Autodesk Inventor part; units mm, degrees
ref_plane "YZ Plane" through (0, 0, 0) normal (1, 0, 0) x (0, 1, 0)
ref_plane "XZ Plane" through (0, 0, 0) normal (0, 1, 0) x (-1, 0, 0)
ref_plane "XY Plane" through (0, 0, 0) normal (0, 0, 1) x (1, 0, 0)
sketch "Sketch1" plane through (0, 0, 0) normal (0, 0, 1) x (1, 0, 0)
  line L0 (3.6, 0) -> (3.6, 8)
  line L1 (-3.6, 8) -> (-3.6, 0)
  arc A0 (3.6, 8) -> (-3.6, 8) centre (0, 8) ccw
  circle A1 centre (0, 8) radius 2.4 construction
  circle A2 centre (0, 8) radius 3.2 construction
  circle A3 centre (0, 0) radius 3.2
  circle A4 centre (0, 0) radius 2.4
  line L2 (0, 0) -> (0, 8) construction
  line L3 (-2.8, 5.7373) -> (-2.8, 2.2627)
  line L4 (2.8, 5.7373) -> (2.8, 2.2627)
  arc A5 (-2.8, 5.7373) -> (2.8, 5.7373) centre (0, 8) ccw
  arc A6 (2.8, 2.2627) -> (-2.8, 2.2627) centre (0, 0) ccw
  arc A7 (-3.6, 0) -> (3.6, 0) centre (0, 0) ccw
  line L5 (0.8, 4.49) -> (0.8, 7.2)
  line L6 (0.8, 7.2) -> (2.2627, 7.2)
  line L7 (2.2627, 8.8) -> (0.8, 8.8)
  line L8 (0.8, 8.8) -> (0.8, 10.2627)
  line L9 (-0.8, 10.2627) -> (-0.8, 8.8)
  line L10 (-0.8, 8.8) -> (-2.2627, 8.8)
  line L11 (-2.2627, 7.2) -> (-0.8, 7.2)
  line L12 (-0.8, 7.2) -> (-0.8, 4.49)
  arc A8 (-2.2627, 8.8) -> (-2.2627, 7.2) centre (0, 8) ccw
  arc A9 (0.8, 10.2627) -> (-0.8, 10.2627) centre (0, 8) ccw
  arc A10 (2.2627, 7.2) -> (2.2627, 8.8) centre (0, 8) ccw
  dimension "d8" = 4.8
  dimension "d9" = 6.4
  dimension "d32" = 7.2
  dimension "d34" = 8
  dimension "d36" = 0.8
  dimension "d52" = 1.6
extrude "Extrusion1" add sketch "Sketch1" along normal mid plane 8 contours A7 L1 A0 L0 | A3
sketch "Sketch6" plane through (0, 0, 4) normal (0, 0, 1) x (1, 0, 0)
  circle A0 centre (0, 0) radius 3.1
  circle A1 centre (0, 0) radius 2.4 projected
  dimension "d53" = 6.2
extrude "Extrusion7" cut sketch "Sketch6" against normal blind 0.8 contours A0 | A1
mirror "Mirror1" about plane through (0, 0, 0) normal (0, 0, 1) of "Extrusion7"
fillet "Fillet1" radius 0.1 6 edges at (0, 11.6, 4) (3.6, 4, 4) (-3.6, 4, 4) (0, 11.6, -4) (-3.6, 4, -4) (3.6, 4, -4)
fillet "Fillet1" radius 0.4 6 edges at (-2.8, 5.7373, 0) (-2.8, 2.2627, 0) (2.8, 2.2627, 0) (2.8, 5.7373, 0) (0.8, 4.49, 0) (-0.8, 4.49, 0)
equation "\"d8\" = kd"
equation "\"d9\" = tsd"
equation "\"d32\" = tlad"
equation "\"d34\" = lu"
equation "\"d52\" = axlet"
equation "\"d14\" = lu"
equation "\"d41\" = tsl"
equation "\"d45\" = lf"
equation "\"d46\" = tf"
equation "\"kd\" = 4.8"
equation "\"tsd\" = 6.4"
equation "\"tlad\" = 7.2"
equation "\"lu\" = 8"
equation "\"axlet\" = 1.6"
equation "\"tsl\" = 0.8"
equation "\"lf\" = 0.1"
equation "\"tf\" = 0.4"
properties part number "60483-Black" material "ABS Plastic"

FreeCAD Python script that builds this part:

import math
import FreeCAD as App
import Part
import Sketcher
from FreeCAD import Vector


def edges_at(feature, points):
    """Names of the edges that pass closest to the given points."""
    edges = feature.Shape.Edges
    near = lambda p: min(range(len(edges)), key=lambda i: edges[i].distToShape(Part.Vertex(*p))[0])
    return sorted({f"Edge{near(p) + 1}" for p in points})

doc = App.newDocument("Part")
body = doc.addObject("PartDesign::Body", "Body")

sketch1 = doc.addObject("Sketcher::SketchObject", "Sketch")
body.addObject(sketch1)
sketch1.AttachmentSupport = (doc.XY_Plane, [""])
sketch1.MapMode = "FlatFace"
sketch1.addGeometry(Part.ArcOfCircle(Part.Circle(Vector(0, 0, 0), Vector(0, 0, 1), 3.6), math.radians(180), math.radians(360)), False)
sketch1.addGeometry(Part.LineSegment(Vector(3.6, 0, 0), Vector(3.6, 8, 0)), False)
sketch1.addGeometry(Part.ArcOfCircle(Part.Circle(Vector(0, 8, 0), Vector(0, 0, 1), 3.6), math.radians(0), math.radians(180)), False)
sketch1.addGeometry(Part.LineSegment(Vector(-3.6, 8, 0), Vector(-3.6, 0, 0)), False)
sketch1.addGeometry(Part.LineSegment(Vector(-2.8, 2.3, 0), Vector(-2.8, 5.7, 0)), False)
sketch1.addGeometry(Part.ArcOfCircle(Part.Circle(Vector(0, 8, 0), Vector(0, 0, 1), 3.6), math.radians(-141), math.radians(-103)), False)
sketch1.addGeometry(Part.LineSegment(Vector(-0.8, 4.5, 0), Vector(-0.8, 7.2, 0)), False)
sketch1.addGeometry(Part.LineSegment(Vector(-0.8, 7.2, 0), Vector(-2.3, 7.2, 0)), False)
sketch1.addGeometry(Part.ArcOfCircle(Part.Circle(Vector(0, 8, 0), Vector(0, 0, 1), 2.4), math.radians(161), math.radians(199)), False)
sketch1.addGeometry(Part.LineSegment(Vector(-2.3, 8.8, 0), Vector(-0.8, 8.8, 0)), False)
sketch1.addGeometry(Part.LineSegment(Vector(-0.8, 8.8, 0), Vector(-0.8, 10.3, 0)), False)
sketch1.addGeometry(Part.ArcOfCircle(Part.Circle(Vector(0, 8, 0), Vector(0, 0, 1), 2.4), math.radians(71), math.radians(109)), False)
sketch1.addGeometry(Part.LineSegment(Vector(0.8, 10.3, 0), Vector(0.8, 8.8, 0)), False)
sketch1.addGeometry(Part.LineSegment(Vector(0.8, 8.8, 0), Vector(2.3, 8.8, 0)), False)
sketch1.addGeometry(Part.ArcOfCircle(Part.Circle(Vector(0, 8, 0), Vector(0, 0, 1), 2.4), math.radians(-19), math.radians(19)), False)
sketch1.addGeometry(Part.LineSegment(Vector(2.3, 7.2, 0), Vector(0.8, 7.2, 0)), False)
sketch1.addGeometry(Part.LineSegment(Vector(0.8, 7.2, 0), Vector(0.8, 4.5, 0)), False)
sketch1.addGeometry(Part.ArcOfCircle(Part.Circle(Vector(0, 8, 0), Vector(0, 0, 1), 3.6), math.radians(-77), math.radians(-39)), False)
sketch1.addGeometry(Part.LineSegment(Vector(2.8, 5.7, 0), Vector(2.8, 2.3, 0)), False)
sketch1.addGeometry(Part.ArcOfCircle(Part.Circle(Vector(0, 0, 0), Vector(0, 0, 1), 3.6), math.radians(39), math.radians(141)), False)
sketch1.addGeometry(Part.Circle(Vector(0, 0, 0), Vector(0, 0, 1), 2.4), False)
sketch1.addConstraint(Sketcher.Constraint("Tangent", 0, 2, 1, 1))
sketch1.addConstraint(Sketcher.Constraint("Tangent", 1, 2, 2, 1))
sketch1.addConstraint(Sketcher.Constraint("Tangent", 2, 2, 3, 1))
sketch1.addConstraint(Sketcher.Constraint("Tangent", 3, 2, 0, 1))
sketch1.addConstraint(Sketcher.Constraint("Coincident", 4, 2, 5, 1))
sketch1.addConstraint(Sketcher.Constraint("Coincident", 5, 2, 6, 1))
sketch1.addConstraint(Sketcher.Constraint("Coincident", 6, 2, 7, 1))
sketch1.addConstraint(Sketcher.Constraint("Coincident", 7, 2, 8, 2))
sketch1.addConstraint(Sketcher.Constraint("Coincident", 8, 1, 9, 1))
sketch1.addConstraint(Sketcher.Constraint("Coincident", 9, 2, 10, 1))
sketch1.addConstraint(Sketcher.Constraint("Coincident", 10, 2, 11, 2))
sketch1.addConstraint(Sketcher.Constraint("Coincident", 11, 1, 12, 1))
sketch1.addConstraint(Sketcher.Constraint("Coincident", 12, 2, 13, 1))
sketch1.addConstraint(Sketcher.Constraint("Coincident", 13, 2, 14, 2))
sketch1.addConstraint(Sketcher.Constraint("Coincident", 14, 1, 15, 1))
sketch1.addConstraint(Sketcher.Constraint("Coincident", 15, 2, 16, 1))
sketch1.addConstraint(Sketcher.Constraint("Coincident", 16, 2, 17, 1))
sketch1.addConstraint(Sketcher.Constraint("Coincident", 17, 2, 18, 1))
sketch1.addConstraint(Sketcher.Constraint("Coincident", 18, 2, 19, 1))
sketch1.addConstraint(Sketcher.Constraint("Coincident", 19, 2, 4, 1))
sketch1.addConstraint(Sketcher.Constraint("Vertical", 1))
sketch1.addConstraint(Sketcher.Constraint("Vertical", 3))
sketch1.addConstraint(Sketcher.Constraint("Vertical", 4))
sketch1.addConstraint(Sketcher.Constraint("Vertical", 6))
sketch1.addConstraint(Sketcher.Constraint("Horizontal", 7))
sketch1.addConstraint(Sketcher.Constraint("Horizontal", 9))
sketch1.addConstraint(Sketcher.Constraint("Vertical", 10))
sketch1.addConstraint(Sketcher.Constraint("Vertical", 12))
sketch1.addConstraint(Sketcher.Constraint("Horizontal", 13))
sketch1.addConstraint(Sketcher.Constraint("Horizontal", 15))
sketch1.addConstraint(Sketcher.Constraint("Vertical", 16))
sketch1.addConstraint(Sketcher.Constraint("Vertical", 18))
sketch1.addConstraint(Sketcher.Constraint("Coincident", 0, 3, -1, 1))
sketch1.addConstraint(Sketcher.Constraint("Coincident", 19, 3, -1, 1))
sketch1.addConstraint(Sketcher.Constraint("Coincident", 20, 3, -1, 1))
sketch1.addConstraint(Sketcher.Constraint("Coincident", 5, 3, 2, 3))
sketch1.addConstraint(Sketcher.Constraint("Coincident", 8, 3, 2, 3))
sketch1.addConstraint(Sketcher.Constraint("Coincident", 11, 3, 2, 3))
sketch1.addConstraint(Sketcher.Constraint("Coincident", 14, 3, 2, 3))
sketch1.addConstraint(Sketcher.Constraint("Coincident", 17, 3, 2, 3))
sketch1.addConstraint(Sketcher.Constraint("Equal", 2, 5))
sketch1.addConstraint(Sketcher.Constraint("Equal", 8, 11))
sketch1.addConstraint(Sketcher.Constraint("Equal", 11, 14))
sketch1.addConstraint(Sketcher.Constraint("Equal", 5, 17))
sketch1.addConstraint(Sketcher.Constraint("Equal", 17, 19))
sketch1.addConstraint(Sketcher.Constraint("Equal", 14, 20))
sketch1.addConstraint(Sketcher.Constraint("Symmetric", 9, 2, 12, 2, -2))
sketch1.addConstraint(Sketcher.Constraint("Symmetric", 6, 2, 15, 2, -2))
sketch1.addConstraint(Sketcher.Constraint("Horizontal", 4, 2, 17, 2))
sketch1.addConstraint(Sketcher.Constraint("Vertical", 7, 2, 8, 1))
sketch1.addConstraint(Sketcher.Constraint("Vertical", 6, 2, 9, 2))
sketch1.addConstraint(Sketcher.Constraint("Equal", 15, 10))
sketch1.addConstraint(Sketcher.Constraint("Diameter", 20, 4.8))
sketch1.addConstraint(Sketcher.Constraint("Radius", 0, 3.6))
sketch1.addConstraint(Sketcher.Constraint("DistanceY", 1, 1, 1, 2, 8.0))
sketch1.addConstraint(Sketcher.Constraint("DistanceX", 5, 2, -1, 1, 0.8))
sketch1.addConstraint(Sketcher.Constraint("DistanceX", 2, 2, 4, 2, 0.8))
pad1 = doc.addObject("PartDesign::Pad", "Pad")
body.addObject(pad1)
pad1.Profile = sketch1
pad1.Length = 8
pad1.Midplane = True

sketch2 = doc.addObject("Sketcher::SketchObject", "Sketch001")
body.addObject(sketch2)
sketch2.AttachmentSupport = (doc.XY_Plane, [""])
sketch2.MapMode = "FlatFace"
sketch2.AttachmentOffset = App.Placement(Vector(0, 0, 4), App.Rotation())
sketch2.addGeometry(Part.Circle(Vector(0, 0, 0), Vector(0, 0, 1), 3.1), False)
sketch2.addConstraint(Sketcher.Constraint("Coincident", 0, 3, -1, 1))
sketch2.addConstraint(Sketcher.Constraint("Diameter", 0, 6.2))
pocket1 = doc.addObject("PartDesign::Pocket", "Pocket")
body.addObject(pocket1)
pocket1.Profile = sketch2
pocket1.Length = 0.8
doc.recompute()

mirrored = doc.addObject("PartDesign::Mirrored", "Mirrored")
body.addObject(mirrored)
mirrored.Originals = [pocket1]
mirrored.MirrorPlane = (doc.XY_Plane, [""])
body.Tip = mirrored
doc.recompute()

fillet = doc.addObject("PartDesign::Fillet", "Fillet")
body.addObject(fillet)
fillet.Base = (mirrored, edges_at(mirrored, [
    (0, 11.6, 4),
    (3.6, 4, 4),
    (-3.6, 4, 4),
    (0, 11.6, -4),
    (-3.6, 4, -4),
    (3.6, 4, -4),
]))
fillet.Radius = 0.1
doc.recompute()

fillet2 = doc.addObject("PartDesign::Fillet", "Fillet001")
body.addObject(fillet2)
fillet2.Base = (fillet, edges_at(fillet, [
    (-2.8, 5.737, 0),
    (-2.8, 2.263, 0),
    (2.8, 2.263, 0),
    (2.8, 5.737, 0),
    (0.8, 4.49, 0),
    (-0.8, 4.49, 0),
]))
fillet2.Radius = 0.4

doc.recompute()
